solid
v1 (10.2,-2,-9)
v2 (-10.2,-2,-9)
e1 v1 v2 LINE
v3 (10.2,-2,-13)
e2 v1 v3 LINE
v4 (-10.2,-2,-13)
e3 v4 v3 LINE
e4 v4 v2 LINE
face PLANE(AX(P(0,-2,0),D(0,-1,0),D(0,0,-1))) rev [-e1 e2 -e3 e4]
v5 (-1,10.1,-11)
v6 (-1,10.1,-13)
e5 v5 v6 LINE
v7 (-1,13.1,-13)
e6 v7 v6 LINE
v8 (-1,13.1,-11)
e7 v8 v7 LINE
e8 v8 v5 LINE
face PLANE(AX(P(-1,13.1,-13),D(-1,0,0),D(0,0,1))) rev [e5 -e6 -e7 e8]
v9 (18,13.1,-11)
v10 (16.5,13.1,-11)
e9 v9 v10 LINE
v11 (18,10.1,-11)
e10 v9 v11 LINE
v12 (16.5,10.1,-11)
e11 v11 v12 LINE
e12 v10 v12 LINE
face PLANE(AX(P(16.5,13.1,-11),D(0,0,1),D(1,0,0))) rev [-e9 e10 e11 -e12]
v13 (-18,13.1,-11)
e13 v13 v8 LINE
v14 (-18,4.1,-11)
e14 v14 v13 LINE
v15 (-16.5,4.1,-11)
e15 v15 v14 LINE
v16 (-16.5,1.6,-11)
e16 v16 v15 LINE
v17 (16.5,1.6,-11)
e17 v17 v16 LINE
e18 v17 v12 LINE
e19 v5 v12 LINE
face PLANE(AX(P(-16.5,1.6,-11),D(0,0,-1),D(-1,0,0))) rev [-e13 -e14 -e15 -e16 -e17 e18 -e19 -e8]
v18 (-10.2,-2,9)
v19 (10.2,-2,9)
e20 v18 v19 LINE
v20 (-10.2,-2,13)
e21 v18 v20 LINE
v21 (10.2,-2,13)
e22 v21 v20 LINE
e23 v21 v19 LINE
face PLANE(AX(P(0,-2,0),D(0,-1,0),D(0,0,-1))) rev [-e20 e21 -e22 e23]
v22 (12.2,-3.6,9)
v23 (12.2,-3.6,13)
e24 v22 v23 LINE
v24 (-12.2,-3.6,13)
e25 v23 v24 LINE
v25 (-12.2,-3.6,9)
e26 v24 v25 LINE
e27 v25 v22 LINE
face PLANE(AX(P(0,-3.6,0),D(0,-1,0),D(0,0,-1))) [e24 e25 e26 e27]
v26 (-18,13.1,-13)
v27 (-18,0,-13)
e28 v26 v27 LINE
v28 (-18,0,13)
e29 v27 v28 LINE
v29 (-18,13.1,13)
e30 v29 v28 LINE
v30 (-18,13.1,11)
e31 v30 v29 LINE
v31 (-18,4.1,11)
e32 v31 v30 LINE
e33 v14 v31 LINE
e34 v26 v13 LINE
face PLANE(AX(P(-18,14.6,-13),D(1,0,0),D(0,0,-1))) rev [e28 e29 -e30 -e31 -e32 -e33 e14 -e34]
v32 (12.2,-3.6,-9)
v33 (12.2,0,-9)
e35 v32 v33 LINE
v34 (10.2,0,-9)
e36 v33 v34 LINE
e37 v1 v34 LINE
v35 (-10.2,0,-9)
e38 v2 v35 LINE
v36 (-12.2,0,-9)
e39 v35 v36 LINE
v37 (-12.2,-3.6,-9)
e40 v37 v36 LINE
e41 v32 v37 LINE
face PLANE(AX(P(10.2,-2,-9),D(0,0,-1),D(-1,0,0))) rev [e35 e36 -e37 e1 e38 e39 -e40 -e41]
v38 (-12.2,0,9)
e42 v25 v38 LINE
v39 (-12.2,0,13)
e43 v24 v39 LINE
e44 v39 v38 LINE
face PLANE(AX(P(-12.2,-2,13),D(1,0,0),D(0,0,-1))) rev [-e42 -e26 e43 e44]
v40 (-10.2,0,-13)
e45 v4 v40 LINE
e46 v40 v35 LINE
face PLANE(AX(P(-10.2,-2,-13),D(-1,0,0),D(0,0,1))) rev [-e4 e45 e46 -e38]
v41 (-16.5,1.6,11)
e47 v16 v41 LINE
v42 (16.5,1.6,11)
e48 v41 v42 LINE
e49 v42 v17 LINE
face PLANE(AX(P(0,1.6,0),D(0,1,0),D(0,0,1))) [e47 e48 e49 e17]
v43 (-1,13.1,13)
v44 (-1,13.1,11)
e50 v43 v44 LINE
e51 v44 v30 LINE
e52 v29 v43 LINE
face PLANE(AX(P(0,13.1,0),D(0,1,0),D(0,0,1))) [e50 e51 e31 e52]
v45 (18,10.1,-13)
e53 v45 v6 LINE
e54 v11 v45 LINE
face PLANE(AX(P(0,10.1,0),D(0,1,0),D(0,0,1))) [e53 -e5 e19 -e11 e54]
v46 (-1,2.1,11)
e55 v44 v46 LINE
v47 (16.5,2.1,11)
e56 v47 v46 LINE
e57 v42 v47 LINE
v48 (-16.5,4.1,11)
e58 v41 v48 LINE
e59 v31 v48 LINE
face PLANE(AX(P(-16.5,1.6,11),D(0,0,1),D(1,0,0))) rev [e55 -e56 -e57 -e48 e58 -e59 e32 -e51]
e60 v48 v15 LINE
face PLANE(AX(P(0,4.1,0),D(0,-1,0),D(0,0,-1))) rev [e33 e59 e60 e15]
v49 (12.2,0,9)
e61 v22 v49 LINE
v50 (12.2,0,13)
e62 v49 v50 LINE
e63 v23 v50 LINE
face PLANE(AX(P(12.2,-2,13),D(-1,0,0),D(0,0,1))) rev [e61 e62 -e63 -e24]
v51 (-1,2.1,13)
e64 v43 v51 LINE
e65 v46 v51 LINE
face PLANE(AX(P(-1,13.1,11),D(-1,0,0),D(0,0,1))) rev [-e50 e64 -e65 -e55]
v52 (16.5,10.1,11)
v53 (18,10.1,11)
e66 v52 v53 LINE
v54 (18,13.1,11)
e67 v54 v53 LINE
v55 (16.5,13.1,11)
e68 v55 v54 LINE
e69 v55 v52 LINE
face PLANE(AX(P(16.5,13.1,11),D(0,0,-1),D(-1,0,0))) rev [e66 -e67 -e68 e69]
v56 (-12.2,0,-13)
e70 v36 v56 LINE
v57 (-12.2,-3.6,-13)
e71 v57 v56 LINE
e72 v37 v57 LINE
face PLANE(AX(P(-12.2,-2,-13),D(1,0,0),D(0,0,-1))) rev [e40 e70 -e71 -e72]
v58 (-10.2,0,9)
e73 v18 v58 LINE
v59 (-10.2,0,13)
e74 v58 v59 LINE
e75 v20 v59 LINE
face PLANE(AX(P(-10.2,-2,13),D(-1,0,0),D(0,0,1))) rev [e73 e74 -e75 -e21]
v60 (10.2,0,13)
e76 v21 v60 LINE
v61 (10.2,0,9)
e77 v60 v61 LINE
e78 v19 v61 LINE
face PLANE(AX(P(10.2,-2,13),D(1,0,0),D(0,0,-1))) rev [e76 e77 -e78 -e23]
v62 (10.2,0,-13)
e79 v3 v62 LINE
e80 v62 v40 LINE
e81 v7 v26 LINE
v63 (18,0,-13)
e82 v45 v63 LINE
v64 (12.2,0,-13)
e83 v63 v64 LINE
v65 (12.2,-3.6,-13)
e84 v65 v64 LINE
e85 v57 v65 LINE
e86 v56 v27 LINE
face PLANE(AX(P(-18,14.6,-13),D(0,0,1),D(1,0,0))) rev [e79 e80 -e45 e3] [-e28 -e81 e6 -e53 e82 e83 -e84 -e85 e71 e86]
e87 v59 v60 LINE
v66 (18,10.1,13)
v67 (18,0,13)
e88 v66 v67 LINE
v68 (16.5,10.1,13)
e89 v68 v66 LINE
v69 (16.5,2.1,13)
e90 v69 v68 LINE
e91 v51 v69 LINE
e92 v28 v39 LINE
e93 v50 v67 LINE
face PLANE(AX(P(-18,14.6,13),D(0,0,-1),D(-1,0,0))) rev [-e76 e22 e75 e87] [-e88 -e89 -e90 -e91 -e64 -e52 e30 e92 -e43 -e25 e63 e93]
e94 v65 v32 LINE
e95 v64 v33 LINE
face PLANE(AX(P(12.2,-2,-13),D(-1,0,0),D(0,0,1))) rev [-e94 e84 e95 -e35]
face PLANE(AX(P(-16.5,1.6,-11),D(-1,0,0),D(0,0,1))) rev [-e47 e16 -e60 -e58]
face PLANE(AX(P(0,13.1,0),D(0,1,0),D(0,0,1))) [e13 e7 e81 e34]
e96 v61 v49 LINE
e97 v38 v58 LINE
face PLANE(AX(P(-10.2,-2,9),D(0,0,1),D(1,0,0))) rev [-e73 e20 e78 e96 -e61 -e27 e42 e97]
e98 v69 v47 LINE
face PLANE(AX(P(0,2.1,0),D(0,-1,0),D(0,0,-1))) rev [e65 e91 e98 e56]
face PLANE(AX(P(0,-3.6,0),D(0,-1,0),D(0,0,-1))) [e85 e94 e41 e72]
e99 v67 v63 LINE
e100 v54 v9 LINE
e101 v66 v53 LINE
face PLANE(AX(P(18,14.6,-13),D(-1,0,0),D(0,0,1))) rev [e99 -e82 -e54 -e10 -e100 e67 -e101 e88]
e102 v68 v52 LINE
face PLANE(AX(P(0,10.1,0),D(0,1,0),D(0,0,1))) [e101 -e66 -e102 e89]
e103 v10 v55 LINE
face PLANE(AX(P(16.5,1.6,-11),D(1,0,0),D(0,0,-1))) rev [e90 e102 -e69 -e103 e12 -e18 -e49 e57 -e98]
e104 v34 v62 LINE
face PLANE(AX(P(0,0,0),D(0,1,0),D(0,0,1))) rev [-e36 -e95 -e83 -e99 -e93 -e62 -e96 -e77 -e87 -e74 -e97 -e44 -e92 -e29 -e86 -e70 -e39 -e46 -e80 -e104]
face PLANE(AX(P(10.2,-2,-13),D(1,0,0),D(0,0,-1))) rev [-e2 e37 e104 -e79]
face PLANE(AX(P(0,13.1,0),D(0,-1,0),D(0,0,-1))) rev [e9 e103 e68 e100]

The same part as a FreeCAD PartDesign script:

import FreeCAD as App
import Part
import Sketcher

V = App.Vector

doc = App.newDocument("Part")
body = doc.addObject("PartDesign::Body", "Body")

# Sketch on XZ plane
sketch1 = doc.addObject("Sketcher::SketchObject", "Sketch")
body.addObject(sketch1)
sketch1.AttachmentSupport = (doc.XZ_Plane, [""])
sketch1.MapMode = "FlatFace"
sketch1.addGeometry(Part.LineSegment(V(-18, -13, 0), V(-18, 13, 0)), False)
sketch1.addGeometry(Part.LineSegment(V(-18, 13, 0), V(18, 13, 0)), False)
sketch1.addGeometry(Part.LineSegment(V(18, 13, 0), V(18, -13, 0)), False)
sketch1.addGeometry(Part.LineSegment(V(18, -13, 0), V(-18, -13, 0)), False)
sketch1.addConstraint(Sketcher.Constraint("Coincident", 0, 2, 1, 1))
sketch1.addConstraint(Sketcher.Constraint("Coincident", 1, 2, 2, 1))
sketch1.addConstraint(Sketcher.Constraint("Coincident", 2, 2, 3, 1))
sketch1.addConstraint(Sketcher.Constraint("Coincident", 3, 2, 0, 1))
sketch1.addConstraint(Sketcher.Constraint("Vertical", 0))
sketch1.addConstraint(Sketcher.Constraint("Horizontal", 1))
sketch1.addConstraint(Sketcher.Constraint("Vertical", 2))
sketch1.addConstraint(Sketcher.Constraint("Horizontal", 3))
sketch1.addConstraint(Sketcher.Constraint("Symmetric", 0, 2, 2, 2, -1, 1))
sketch1.addConstraint(Sketcher.Constraint("DistanceX", 1, 1, 1, 2, 36.0))
sketch1.addConstraint(Sketcher.Constraint("DistanceY", 0, 1, 0, 2, 26.0))
pad1 = doc.addObject("PartDesign::Pad", "Pad")
body.addObject(pad1)
pad1.Profile = sketch1
pad1.Length = 14.6
pad1.Reversed = True

# Sketch on XZ plane
sketch2 = doc.addObject("Sketcher::SketchObject", "Sketch001")
body.addObject(sketch2)
sketch2.AttachmentSupport = (doc.XZ_Plane, [""])
sketch2.MapMode = "FlatFace"
sketch2.AttachmentOffset = App.Placement(V(0, 0, -14.6), App.Rotation())
sketch2.addGeometry(Part.LineSegment(V(-16, -11, 0), V(-16, 11, 0)), False)
sketch2.addGeometry(Part.LineSegment(V(-16, 11, 0), V(16, 11, 0)), False)
sketch2.addGeometry(Part.LineSegment(V(16, 11, 0), V(16, -11, 0)), False)
sketch2.addGeometry(Part.LineSegment(V(16, -11, 0), V(-16, -11, 0)), False)
sketch2.addConstraint(Sketcher.Constraint("Coincident", 0, 2, 1, 1))
sketch2.addConstraint(Sketcher.Constraint("Coincident", 1, 2, 2, 1))
sketch2.addConstraint(Sketcher.Constraint("Coincident", 2, 2, 3, 1))
sketch2.addConstraint(Sketcher.Constraint("Coincident", 3, 2, 0, 1))
sketch2.addConstraint(Sketcher.Constraint("Vertical", 0))
sketch2.addConstraint(Sketcher.Constraint("Horizontal", 1))
sketch2.addConstraint(Sketcher.Constraint("Vertical", 2))
sketch2.addConstraint(Sketcher.Constraint("Horizontal", 3))
sketch2.addConstraint(Sketcher.Constraint("Symmetric", 0, 2, 2, 2, -1, 1))
sketch2.addConstraint(Sketcher.Constraint("DistanceX", 1, 1, 1, 2, 33.0))
sketch2.addConstraint(Sketcher.Constraint("DistanceY", 0, 1, 0, 2, 22.0))
pocket1 = doc.addObject("PartDesign::Pocket", "Pocket")
body.addObject(pocket1)
pocket1.Profile = sketch2
pocket1.Length = 13
pocket1.Reversed = True

# Sketch on XZ plane
sketch3 = doc.addObject("Sketcher::SketchObject", "Sketch002")
body.addObject(sketch3)
sketch3.AttachmentSupport = (doc.XZ_Plane, [""])
sketch3.MapMode = "FlatFace"
sketch3.AttachmentOffset = App.Placement(V(0, 0, -14.6), App.Rotation())
sketch3.addGeometry(Part.LineSegment(V(-18, -13, 0), V(-18, 13, 0)), False)
sketch3.addGeometry(Part.LineSegment(V(-18, 13, 0), V(18, 13, 0)), False)
sketch3.addGeometry(Part.LineSegment(V(18, 13, 0), V(18, -13, 0)), False)
sketch3.addGeometry(Part.LineSegment(V(18, -13, 0), V(-18, -13, 0)), False)
sketch3.addConstraint(Sketcher.Constraint("Coincident", 0, 2, 1, 1))
sketch3.addConstraint(Sketcher.Constraint("Coincident", 1, 2, 2, 1))
sketch3.addConstraint(Sketcher.Constraint("Coincident", 2, 2, 3, 1))
sketch3.addConstraint(Sketcher.Constraint("Coincident", 3, 2, 0, 1))
sketch3.addConstraint(Sketcher.Constraint("Vertical", 0))
sketch3.addConstraint(Sketcher.Constraint("Horizontal", 1))
sketch3.addConstraint(Sketcher.Constraint("Vertical", 2))
sketch3.addConstraint(Sketcher.Constraint("Horizontal", 3))
sketch3.addConstraint(Sketcher.Constraint("Symmetric", 0, 2, 2, 2, -1, 1))
sketch3.addConstraint(Sketcher.Constraint("DistanceX", 1, 1, 1, 2, 36.0))
sketch3.addConstraint(Sketcher.Constraint("DistanceY", 0, 1, 0, 2, 26.0))
pocket2 = doc.addObject("PartDesign::Pocket", "Pocket001")
body.addObject(pocket2)
pocket2.Profile = sketch3
pocket2.Length = 4.5
pocket2.Reversed = True

# Sketch on XZ plane
sketch4 = doc.addObject("Sketcher::SketchObject", "Sketch003")
body.addObject(sketch4)
sketch4.AttachmentSupport = (doc.XZ_Plane, [""])
sketch4.MapMode = "FlatFace"
sketch4.AttachmentOffset = App.Placement(V(0, 0, -10.1), App.Rotation())
sketch4.addGeometry(Part.LineSegment(V(-18, -11, 0), V(-18, 11, 0)), False)
sketch4.addGeometry(Part.LineSegment(V(-18, 11, 0), V(-16.5, 11, 0)), False)
sketch4.addGeometry(Part.LineSegment(V(-16.5, 11, 0), V(-16.5, -11, 0)), False)
sketch4.addGeometry(Part.LineSegment(V(-16.5, -11, 0), V(-18, -11, 0)), False)
sketch4.addConstraint(Sketcher.Constraint("Coincident", 0, 2, 1, 1))
sketch4.addConstraint(Sketcher.Constraint("Coincident", 1, 2, 2, 1))
sketch4.addConstraint(Sketcher.Constraint("Coincident", 2, 2, 3, 1))
sketch4.addConstraint(Sketcher.Constraint("Coincident", 3, 2, 0, 1))
sketch4.addConstraint(Sketcher.Constraint("Vertical", 0))
sketch4.addConstraint(Sketcher.Constraint("Horizontal", 1))
sketch4.addConstraint(Sketcher.Constraint("Vertical", 2))
sketch4.addConstraint(Sketcher.Constraint("Horizontal", 3))
sketch4.addConstraint(Sketcher.Constraint("DistanceY", 0, 1, 0, 2, 22.0))
sketch4.addConstraint(Sketcher.Constraint("DistanceX", 1, 1, 1, 2, 1.5))
sketch4.addConstraint(Sketcher.Constraint("DistanceX", 0, 2, -1, 1, 18.0))
sketch4.addConstraint(Sketcher.Constraint("DistanceY", -1, 1, 0, 2, 11.0))
pocket3 = doc.addObject("PartDesign::Pocket", "Pocket002")
body.addObject(pocket3)
pocket3.Profile = sketch4
pocket3.Length = 6
pocket3.Reversed = True

# Sketch on XZ plane
sketch5 = doc.addObject("Sketcher::SketchObject", "Sketch004")
body.addObject(sketch5)
sketch5.AttachmentSupport = (doc.XZ_Plane, [""])
sketch5.MapMode = "FlatFace"
sketch5.addGeometry(Part.LineSegment(V(12.2, 9, 0), V(12.2, 13, 0)), False)
sketch5.addGeometry(Part.LineSegment(V(12.2, 13, 0), V(10.2, 13, 0)), False)
sketch5.addGeometry(Part.LineSegment(V(10.2, 13, 0), V(10.2, 9, 0)), False)
sketch5.addGeometry(Part.LineSegment(V(10.2, 9, 0), V(12.2, 9, 0)), False)
sketch5.addGeometry(Part.LineSegment(V(-10.2, 9, 0), V(-10.2, 13, 0)), False)
sketch5.addGeometry(Part.LineSegment(V(-10.2, 13, 0), V(-12.2, 13, 0)), False)
sketch5.addGeometry(Part.LineSegment(V(-12.2, 13, 0), V(-12.2, 9, 0)), False)
sketch5.addGeometry(Part.LineSegment(V(-12.2, 9, 0), V(-10.2, 9, 0)), False)
sketch5.addGeometry(Part.LineSegment(V(12.2, -13, 0), V(12.2, -9, 0)), False)
sketch5.addGeometry(Part.LineSegment(V(12.2, -9, 0), V(10.2, -9, 0)), False)
sketch5.addGeometry(Part.LineSegment(V(10.2, -9, 0), V(10.2, -13, 0)), False)
sketch5.addGeometry(Part.LineSegment(V(10.2, -13, 0), V(12.2, -13, 0)), False)
sketch5.addGeometry(Part.LineSegment(V(-10.2, -13, 0), V(-10.2, -9, 0)), False)
sketch5.addGeometry(Part.LineSegment(V(-10.2, -9, 0), V(-12.2, -9, 0)), False)
sketch5.addGeometry(Part.LineSegment(V(-12.2, -9, 0), V(-12.2, -13, 0)), False)
sketch5.addGeometry(Part.LineSegment(V(-12.2, -13, 0), V(-10.2, -13, 0)), False)
sketch5.addConstraint(Sketcher.Constraint("Coincident", 0, 2, 1, 1))
sketch5.addConstraint(Sketcher.Constraint("Coincident", 1, 2, 2, 1))
sketch5.addConstraint(Sketcher.Constraint("Coincident", 2, 2, 3, 1))
sketch5.addConstraint(Sketcher.Constraint("Coincident", 3, 2, 0, 1))
sketch5.addConstraint(Sketcher.Constraint("Coincident", 4, 2, 5, 1))
sketch5.addConstraint(Sketcher.Constraint("Coincident", 5, 2, 6, 1))
sketch5.addConstraint(Sketcher.Constraint("Coincident", 6, 2, 7, 1))
sketch5.addConstraint(Sketcher.Constraint("Coincident", 7, 2, 4, 1))
sketch5.addConstraint(Sketcher.Constraint("Coincident", 8, 2, 9, 1))
sketch5.addConstraint(Sketcher.Constraint("Coincident", 9, 2, 10, 1))
sketch5.addConstraint(Sketcher.Constraint("Coincident", 10, 2, 11, 1))
sketch5.addConstraint(Sketcher.Constraint("Coincident", 11, 2, 8, 1))
sketch5.addConstraint(Sketcher.Constraint("Coincident", 12, 2, 13, 1))
sketch5.addConstraint(Sketcher.Constraint("Coincident", 13, 2, 14, 1))
sketch5.addConstraint(Sketcher.Constraint("Coincident", 14, 2, 15, 1))
sketch5.addConstraint(Sketcher.Constraint("Coincident", 15, 2, 12, 1))
sketch5.addConstraint(Sketcher.Constraint("Vertical", 0))
sketch5.addConstraint(Sketcher.Constraint("Horizontal", 1))
sketch5.addConstraint(Sketcher.Constraint("Vertical", 2))
sketch5.addConstraint(Sketcher.Constraint("Horizontal", 3))
sketch5.addConstraint(Sketcher.Constraint("Vertical", 4))
sketch5.addConstraint(Sketcher.Constraint("Horizontal", 5))
sketch5.addConstraint(Sketcher.Constraint("Vertical", 6))
sketch5.addConstraint(Sketcher.Constraint("Horizontal", 7))
sketch5.addConstraint(Sketcher.Constraint("Vertical", 8))
sketch5.addConstraint(Sketcher.Constraint("Horizontal", 9))
sketch5.addConstraint(Sketcher.Constraint("Vertical", 10))
sketch5.addConstraint(Sketcher.Constraint("Horizontal", 11))
sketch5.addConstraint(Sketcher.Constraint("Vertical", 12))
sketch5.addConstraint(Sketcher.Constraint("Horizontal", 13))
sketch5.addConstraint(Sketcher.Constraint("Vertical", 14))
sketch5.addConstraint(Sketcher.Constraint("Horizontal", 15))
sketch5.addConstraint(Sketcher.Constraint("Symmetric", 6, 2, 8, 2, -1, 1))
sketch5.addConstraint(Sketcher.Constraint("Symmetric", 4, 2, 10, 2, -1, 1))
sketch5.addConstraint(Sketcher.Constraint("Symmetric", 2, 2, 12, 2, -1, 1))
sketch5.addConstraint(Sketcher.Constraint("Symmetric", 0, 2, 14, 2, -1, 1))
sketch5.addConstraint(Sketcher.Constraint("Symmetric", 1, 2, 4, 2, -2))
sketch5.addConstraint(Sketcher.Constraint("Symmetric", 3, 2, 6, 2, -2))
sketch5.addConstraint(Sketcher.Constraint("DistanceX", 1, 2, 1, 1, 2.0))
sketch5.addConstraint(Sketcher.Constraint("DistanceY", 0, 1, 0, 2, 4.0))
sketch5.addConstraint(Sketcher.Constraint("DistanceY", -1, 1, 0, 2, 13.0))
sketch5.addConstraint(Sketcher.Constraint("DistanceX", -1, 1, 0, 2, 12.2))
pad2 = doc.addObject("PartDesign::Pad", "Pad001")
body.addObject(pad2)
pad2.Profile = sketch5
pad2.Length = 2

# Sketch on XZ plane
sketch6 = doc.addObject("Sketcher::SketchObject", "Sketch005")
body.addObject(sketch6)
sketch6.AttachmentSupport = (doc.XZ_Plane, [""])
sketch6.MapMode = "FlatFace"
sketch6.AttachmentOffset = App.Placement(V(0, 0, 2), App.Rotation())
sketch6.addGeometry(Part.LineSegment(V(12.2, 9, 0), V(12.2, 13, 0)), False)
sketch6.addGeometry(Part.LineSegment(V(12.2, 13, 0), V(-12.2, 13, 0)), False)
sketch6.addGeometry(Part.LineSegment(V(-12.2, 13, 0), V(-12.2, 9, 0)), False)
sketch6.addGeometry(Part.LineSegment(V(-12.2, 9, 0), V(12.2, 9, 0)), False)
sketch6.addGeometry(Part.LineSegment(V(12.2, -13, 0), V(12.2, -9, 0)), False)
sketch6.addGeometry(Part.LineSegment(V(12.2, -9, 0), V(-12.2, -9, 0)), False)
sketch6.addGeometry(Part.LineSegment(V(-12.2, -9, 0), V(-12.2, -13, 0)), False)
sketch6.addGeometry(Part.LineSegment(V(-12.2, -13, 0), V(12.2, -13, 0)), False)
sketch6.addConstraint(Sketcher.Constraint("Coincident", 0, 2, 1, 1))
sketch6.addConstraint(Sketcher.Constraint("Coincident", 1, 2, 2, 1))
sketch6.addConstraint(Sketcher.Constraint("Coincident", 2, 2, 3, 1))
sketch6.addConstraint(Sketcher.Constraint("Coincident", 3, 2, 0, 1))
sketch6.addConstraint(Sketcher.Constraint("Coincident", 4, 2, 5, 1))
sketch6.addConstraint(Sketcher.Constraint("Coincident", 5, 2, 6, 1))
sketch6.addConstraint(Sketcher.Constraint("Coincident", 6, 2, 7, 1))
sketch6.addConstraint(Sketcher.Constraint("Coincident", 7, 2, 4, 1))
sketch6.addConstraint(Sketcher.Constraint("Vertical", 0))
sketch6.addConstraint(Sketcher.Constraint("Horizontal", 1))
sketch6.addConstraint(Sketcher.Constraint("Vertical", 2))
sketch6.addConstraint(Sketcher.Constraint("Horizontal", 3))
sketch6.addConstraint(Sketcher.Constraint("Vertical", 4))
sketch6.addConstraint(Sketcher.Constraint("Horizontal", 5))
sketch6.addConstraint(Sketcher.Constraint("Vertical", 6))
sketch6.addConstraint(Sketcher.Constraint("Horizontal", 7))
sketch6.addConstraint(Sketcher.Constraint("Symmetric", 2, 2, 4, 2, -1, 1))
sketch6.addConstraint(Sketcher.Constraint("Symmetric", 0, 2, 6, 2, -1, 1))
sketch6.addConstraint(Sketcher.Constraint("Vertical", 3, 2, 4, 2))
sketch6.addConstraint(Sketcher.Constraint("DistanceY", 0, 1, 0, 2, 4.0))
sketch6.addConstraint(Sketcher.Constraint("DistanceX", 1, 2, 1, 1, 24.4))
sketch6.addConstraint(Sketcher.Constraint("DistanceY", -1, 1, 0, 2, 13.0))
pad3 = doc.addObject("PartDesign::Pad", "Pad002")
body.addObject(pad3)
pad3.Profile = sketch6
pad3.Length = 1.6

# Sketch on XZ plane
sketch7 = doc.addObject("Sketcher::SketchObject", "Sketch006")
body.addObject(sketch7)
sketch7.AttachmentSupport = (doc.XZ_Plane, [""])
sketch7.MapMode = "FlatFace"
sketch7.AttachmentOffset = App.Placement(V(0, 0, -10.1), App.Rotation())
sketch7.addGeometry(Part.LineSegment(V(-18, -13, 0), V(-18, -11, 0)), False)
sketch7.addGeometry(Part.LineSegment(V(-18, -11, 0), V(-1, -11, 0)), False)
sketch7.addGeometry(Part.LineSegment(V(-1, -11, 0), V(-1, -13, 0)), False)
sketch7.addGeometry(Part.LineSegment(V(-1, -13, 0), V(-18, -13, 0)), False)
sketch7.addGeometry(Part.LineSegment(V(-18, 11, 0), V(-18, 13, 0)), False)
sketch7.addGeometry(Part.LineSegment(V(-18, 13, 0), V(-1, 13, 0)), False)
sketch7.addGeometry(Part.LineSegment(V(-1, 13, 0), V(-1, 11, 0)), False)
sketch7.addGeometry(Part.LineSegment(V(-1, 11, 0), V(-18, 11, 0)), False)
sketch7.addGeometry(Part.LineSegment(V(16.5, -11, 0), V(16.5, 11, 0)), False)
sketch7.addGeometry(Part.LineSegment(V(16.5, 11, 0), V(18, 11, 0)), False)
sketch7.addGeometry(Part.LineSegment(V(18, 11, 0), V(18, -11, 0)), False)
sketch7.addGeometry(Part.LineSegment(V(18, -11, 0), V(16.5, -11, 0)), False)
sketch7.addConstraint(Sketcher.Constraint("Coincident", 0, 2, 1, 1))
sketch7.addConstraint(Sketcher.Constraint("Coincident", 1, 2, 2, 1))
sketch7.addConstraint(Sketcher.Constraint("Coincident", 2, 2, 3, 1))
sketch7.addConstraint(Sketcher.Constraint("Coincident", 3, 2, 0, 1))
sketch7.addConstraint(Sketcher.Constraint("Coincident", 4, 2, 5, 1))
sketch7.addConstraint(Sketcher.Constraint("Coincident", 5, 2, 6, 1))
sketch7.addConstraint(Sketcher.Constraint("Coincident", 6, 2, 7, 1))
sketch7.addConstraint(Sketcher.Constraint("Coincident", 7, 2, 4, 1))
sketch7.addConstraint(Sketcher.Constraint("Coincident", 8, 2, 9, 1))
sketch7.addConstraint(Sketcher.Constraint("Coincident", 9, 2, 10, 1))
sketch7.addConstraint(Sketcher.Constraint("Coincident", 10, 2, 11, 1))
sketch7.addConstraint(Sketcher.Constraint("Coincident", 11, 2, 8, 1))
sketch7.addConstraint(Sketcher.Constraint("Vertical", 0))
sketch7.addConstraint(Sketcher.Constraint("Horizontal", 1))
sketch7.addConstraint(Sketcher.Constraint("Vertical", 2))
sketch7.addConstraint(Sketcher.Constraint("Horizontal", 3))
sketch7.addConstraint(Sketcher.Constraint("Vertical", 4))
sketch7.addConstraint(Sketcher.Constraint("Horizontal", 5))
sketch7.addConstraint(Sketcher.Constraint("Vertical", 6))
sketch7.addConstraint(Sketcher.Constraint("Horizontal", 7))
sketch7.addConstraint(Sketcher.Constraint("Vertical", 8))
sketch7.addConstraint(Sketcher.Constraint("Horizontal", 9))
sketch7.addConstraint(Sketcher.Constraint("Vertical", 10))
sketch7.addConstraint(Sketcher.Constraint("Horizontal", 11))
sketch7.addConstraint(Sketcher.Constraint("Symmetric", 0, 2, 9, 2, -1, 1))
sketch7.addConstraint(Sketcher.Constraint("Symmetric", 7, 2, 10, 2, -1, 1))
sketch7.addConstraint(Sketcher.Constraint("Symmetric", 2, 2, 5, 2, -1))
sketch7.addConstraint(Sketcher.Constraint("Horizontal", 7, 2, 8, 2))
sketch7.addConstraint(Sketcher.Constraint("DistanceX", 1, 1, 1, 2, 17.0))
sketch7.addConstraint(Sketcher.Constraint("DistanceY", 0, 1, 0, 2, 2.0))
sketch7.addConstraint(Sketcher.Constraint("DistanceY", 8, 1, 8, 2, 22.0))
sketch7.addConstraint(Sketcher.Constraint("DistanceX", 9, 1, 9, 2, 1.5))
sketch7.addConstraint(Sketcher.Constraint("DistanceX", 0, 2, -1, 1, 18.0))
pad4 = doc.addObject("PartDesign::Pad", "Pad003")
body.addObject(pad4)
pad4.Profile = sketch7
pad4.Length = 3
pad4.Reversed = True

# Sketch on XZ plane
sketch8 = doc.addObject("Sketcher::SketchObject", "Sketch007")
body.addObject(sketch8)
sketch8.AttachmentSupport = (doc.XZ_Plane, [""])
sketch8.MapMode = "FlatFace"
sketch8.AttachmentOffset = App.Placement(V(0, 0, -10.1), App.Rotation())
sketch8.addGeometry(Part.LineSegment(V(-1, 11, 0), V(-1, 13, 0)), False)
sketch8.addGeometry(Part.LineSegment(V(-1, 13, 0), V(16.5, 13, 0)), False)
sketch8.addGeometry(Part.LineSegment(V(16.5, 13, 0), V(16.5, 11, 0)), False)
sketch8.addGeometry(Part.LineSegment(V(16.5, 11, 0), V(-1, 11, 0)), False)
sketch8.addConstraint(Sketcher.Constraint("Coincident", 0, 2, 1, 1))
sketch8.addConstraint(Sketcher.Constraint("Coincident", 1, 2, 2, 1))
sketch8.addConstraint(Sketcher.Constraint("Coincident", 2, 2, 3, 1))
sketch8.addConstraint(Sketcher.Constraint("Coincident", 3, 2, 0, 1))
sketch8.addConstraint(Sketcher.Constraint("Vertical", 0))
sketch8.addConstraint(Sketcher.Constraint("Horizontal", 1))
sketch8.addConstraint(Sketcher.Constraint("Vertical", 2))
sketch8.addConstraint(Sketcher.Constraint("Horizontal", 3))
sketch8.addConstraint(Sketcher.Constraint("DistanceY", 0, 1, 0, 2, 2.0))
sketch8.addConstraint(Sketcher.Constraint("DistanceX", 1, 1, 1, 2, 17.5))
sketch8.addConstraint(Sketcher.Constraint("DistanceX", 0, 2, -1, 1, 1.0))
sketch8.addConstraint(Sketcher.Constraint("DistanceY", -1, 1, 0, 2, 13.0))
pocket4 = doc.addObject("PartDesign::Pocket", "Pocket003")
body.addObject(pocket4)
pocket4.Profile = sketch8
pocket4.Length = 8
pocket4.Reversed = True

doc.recompute()
